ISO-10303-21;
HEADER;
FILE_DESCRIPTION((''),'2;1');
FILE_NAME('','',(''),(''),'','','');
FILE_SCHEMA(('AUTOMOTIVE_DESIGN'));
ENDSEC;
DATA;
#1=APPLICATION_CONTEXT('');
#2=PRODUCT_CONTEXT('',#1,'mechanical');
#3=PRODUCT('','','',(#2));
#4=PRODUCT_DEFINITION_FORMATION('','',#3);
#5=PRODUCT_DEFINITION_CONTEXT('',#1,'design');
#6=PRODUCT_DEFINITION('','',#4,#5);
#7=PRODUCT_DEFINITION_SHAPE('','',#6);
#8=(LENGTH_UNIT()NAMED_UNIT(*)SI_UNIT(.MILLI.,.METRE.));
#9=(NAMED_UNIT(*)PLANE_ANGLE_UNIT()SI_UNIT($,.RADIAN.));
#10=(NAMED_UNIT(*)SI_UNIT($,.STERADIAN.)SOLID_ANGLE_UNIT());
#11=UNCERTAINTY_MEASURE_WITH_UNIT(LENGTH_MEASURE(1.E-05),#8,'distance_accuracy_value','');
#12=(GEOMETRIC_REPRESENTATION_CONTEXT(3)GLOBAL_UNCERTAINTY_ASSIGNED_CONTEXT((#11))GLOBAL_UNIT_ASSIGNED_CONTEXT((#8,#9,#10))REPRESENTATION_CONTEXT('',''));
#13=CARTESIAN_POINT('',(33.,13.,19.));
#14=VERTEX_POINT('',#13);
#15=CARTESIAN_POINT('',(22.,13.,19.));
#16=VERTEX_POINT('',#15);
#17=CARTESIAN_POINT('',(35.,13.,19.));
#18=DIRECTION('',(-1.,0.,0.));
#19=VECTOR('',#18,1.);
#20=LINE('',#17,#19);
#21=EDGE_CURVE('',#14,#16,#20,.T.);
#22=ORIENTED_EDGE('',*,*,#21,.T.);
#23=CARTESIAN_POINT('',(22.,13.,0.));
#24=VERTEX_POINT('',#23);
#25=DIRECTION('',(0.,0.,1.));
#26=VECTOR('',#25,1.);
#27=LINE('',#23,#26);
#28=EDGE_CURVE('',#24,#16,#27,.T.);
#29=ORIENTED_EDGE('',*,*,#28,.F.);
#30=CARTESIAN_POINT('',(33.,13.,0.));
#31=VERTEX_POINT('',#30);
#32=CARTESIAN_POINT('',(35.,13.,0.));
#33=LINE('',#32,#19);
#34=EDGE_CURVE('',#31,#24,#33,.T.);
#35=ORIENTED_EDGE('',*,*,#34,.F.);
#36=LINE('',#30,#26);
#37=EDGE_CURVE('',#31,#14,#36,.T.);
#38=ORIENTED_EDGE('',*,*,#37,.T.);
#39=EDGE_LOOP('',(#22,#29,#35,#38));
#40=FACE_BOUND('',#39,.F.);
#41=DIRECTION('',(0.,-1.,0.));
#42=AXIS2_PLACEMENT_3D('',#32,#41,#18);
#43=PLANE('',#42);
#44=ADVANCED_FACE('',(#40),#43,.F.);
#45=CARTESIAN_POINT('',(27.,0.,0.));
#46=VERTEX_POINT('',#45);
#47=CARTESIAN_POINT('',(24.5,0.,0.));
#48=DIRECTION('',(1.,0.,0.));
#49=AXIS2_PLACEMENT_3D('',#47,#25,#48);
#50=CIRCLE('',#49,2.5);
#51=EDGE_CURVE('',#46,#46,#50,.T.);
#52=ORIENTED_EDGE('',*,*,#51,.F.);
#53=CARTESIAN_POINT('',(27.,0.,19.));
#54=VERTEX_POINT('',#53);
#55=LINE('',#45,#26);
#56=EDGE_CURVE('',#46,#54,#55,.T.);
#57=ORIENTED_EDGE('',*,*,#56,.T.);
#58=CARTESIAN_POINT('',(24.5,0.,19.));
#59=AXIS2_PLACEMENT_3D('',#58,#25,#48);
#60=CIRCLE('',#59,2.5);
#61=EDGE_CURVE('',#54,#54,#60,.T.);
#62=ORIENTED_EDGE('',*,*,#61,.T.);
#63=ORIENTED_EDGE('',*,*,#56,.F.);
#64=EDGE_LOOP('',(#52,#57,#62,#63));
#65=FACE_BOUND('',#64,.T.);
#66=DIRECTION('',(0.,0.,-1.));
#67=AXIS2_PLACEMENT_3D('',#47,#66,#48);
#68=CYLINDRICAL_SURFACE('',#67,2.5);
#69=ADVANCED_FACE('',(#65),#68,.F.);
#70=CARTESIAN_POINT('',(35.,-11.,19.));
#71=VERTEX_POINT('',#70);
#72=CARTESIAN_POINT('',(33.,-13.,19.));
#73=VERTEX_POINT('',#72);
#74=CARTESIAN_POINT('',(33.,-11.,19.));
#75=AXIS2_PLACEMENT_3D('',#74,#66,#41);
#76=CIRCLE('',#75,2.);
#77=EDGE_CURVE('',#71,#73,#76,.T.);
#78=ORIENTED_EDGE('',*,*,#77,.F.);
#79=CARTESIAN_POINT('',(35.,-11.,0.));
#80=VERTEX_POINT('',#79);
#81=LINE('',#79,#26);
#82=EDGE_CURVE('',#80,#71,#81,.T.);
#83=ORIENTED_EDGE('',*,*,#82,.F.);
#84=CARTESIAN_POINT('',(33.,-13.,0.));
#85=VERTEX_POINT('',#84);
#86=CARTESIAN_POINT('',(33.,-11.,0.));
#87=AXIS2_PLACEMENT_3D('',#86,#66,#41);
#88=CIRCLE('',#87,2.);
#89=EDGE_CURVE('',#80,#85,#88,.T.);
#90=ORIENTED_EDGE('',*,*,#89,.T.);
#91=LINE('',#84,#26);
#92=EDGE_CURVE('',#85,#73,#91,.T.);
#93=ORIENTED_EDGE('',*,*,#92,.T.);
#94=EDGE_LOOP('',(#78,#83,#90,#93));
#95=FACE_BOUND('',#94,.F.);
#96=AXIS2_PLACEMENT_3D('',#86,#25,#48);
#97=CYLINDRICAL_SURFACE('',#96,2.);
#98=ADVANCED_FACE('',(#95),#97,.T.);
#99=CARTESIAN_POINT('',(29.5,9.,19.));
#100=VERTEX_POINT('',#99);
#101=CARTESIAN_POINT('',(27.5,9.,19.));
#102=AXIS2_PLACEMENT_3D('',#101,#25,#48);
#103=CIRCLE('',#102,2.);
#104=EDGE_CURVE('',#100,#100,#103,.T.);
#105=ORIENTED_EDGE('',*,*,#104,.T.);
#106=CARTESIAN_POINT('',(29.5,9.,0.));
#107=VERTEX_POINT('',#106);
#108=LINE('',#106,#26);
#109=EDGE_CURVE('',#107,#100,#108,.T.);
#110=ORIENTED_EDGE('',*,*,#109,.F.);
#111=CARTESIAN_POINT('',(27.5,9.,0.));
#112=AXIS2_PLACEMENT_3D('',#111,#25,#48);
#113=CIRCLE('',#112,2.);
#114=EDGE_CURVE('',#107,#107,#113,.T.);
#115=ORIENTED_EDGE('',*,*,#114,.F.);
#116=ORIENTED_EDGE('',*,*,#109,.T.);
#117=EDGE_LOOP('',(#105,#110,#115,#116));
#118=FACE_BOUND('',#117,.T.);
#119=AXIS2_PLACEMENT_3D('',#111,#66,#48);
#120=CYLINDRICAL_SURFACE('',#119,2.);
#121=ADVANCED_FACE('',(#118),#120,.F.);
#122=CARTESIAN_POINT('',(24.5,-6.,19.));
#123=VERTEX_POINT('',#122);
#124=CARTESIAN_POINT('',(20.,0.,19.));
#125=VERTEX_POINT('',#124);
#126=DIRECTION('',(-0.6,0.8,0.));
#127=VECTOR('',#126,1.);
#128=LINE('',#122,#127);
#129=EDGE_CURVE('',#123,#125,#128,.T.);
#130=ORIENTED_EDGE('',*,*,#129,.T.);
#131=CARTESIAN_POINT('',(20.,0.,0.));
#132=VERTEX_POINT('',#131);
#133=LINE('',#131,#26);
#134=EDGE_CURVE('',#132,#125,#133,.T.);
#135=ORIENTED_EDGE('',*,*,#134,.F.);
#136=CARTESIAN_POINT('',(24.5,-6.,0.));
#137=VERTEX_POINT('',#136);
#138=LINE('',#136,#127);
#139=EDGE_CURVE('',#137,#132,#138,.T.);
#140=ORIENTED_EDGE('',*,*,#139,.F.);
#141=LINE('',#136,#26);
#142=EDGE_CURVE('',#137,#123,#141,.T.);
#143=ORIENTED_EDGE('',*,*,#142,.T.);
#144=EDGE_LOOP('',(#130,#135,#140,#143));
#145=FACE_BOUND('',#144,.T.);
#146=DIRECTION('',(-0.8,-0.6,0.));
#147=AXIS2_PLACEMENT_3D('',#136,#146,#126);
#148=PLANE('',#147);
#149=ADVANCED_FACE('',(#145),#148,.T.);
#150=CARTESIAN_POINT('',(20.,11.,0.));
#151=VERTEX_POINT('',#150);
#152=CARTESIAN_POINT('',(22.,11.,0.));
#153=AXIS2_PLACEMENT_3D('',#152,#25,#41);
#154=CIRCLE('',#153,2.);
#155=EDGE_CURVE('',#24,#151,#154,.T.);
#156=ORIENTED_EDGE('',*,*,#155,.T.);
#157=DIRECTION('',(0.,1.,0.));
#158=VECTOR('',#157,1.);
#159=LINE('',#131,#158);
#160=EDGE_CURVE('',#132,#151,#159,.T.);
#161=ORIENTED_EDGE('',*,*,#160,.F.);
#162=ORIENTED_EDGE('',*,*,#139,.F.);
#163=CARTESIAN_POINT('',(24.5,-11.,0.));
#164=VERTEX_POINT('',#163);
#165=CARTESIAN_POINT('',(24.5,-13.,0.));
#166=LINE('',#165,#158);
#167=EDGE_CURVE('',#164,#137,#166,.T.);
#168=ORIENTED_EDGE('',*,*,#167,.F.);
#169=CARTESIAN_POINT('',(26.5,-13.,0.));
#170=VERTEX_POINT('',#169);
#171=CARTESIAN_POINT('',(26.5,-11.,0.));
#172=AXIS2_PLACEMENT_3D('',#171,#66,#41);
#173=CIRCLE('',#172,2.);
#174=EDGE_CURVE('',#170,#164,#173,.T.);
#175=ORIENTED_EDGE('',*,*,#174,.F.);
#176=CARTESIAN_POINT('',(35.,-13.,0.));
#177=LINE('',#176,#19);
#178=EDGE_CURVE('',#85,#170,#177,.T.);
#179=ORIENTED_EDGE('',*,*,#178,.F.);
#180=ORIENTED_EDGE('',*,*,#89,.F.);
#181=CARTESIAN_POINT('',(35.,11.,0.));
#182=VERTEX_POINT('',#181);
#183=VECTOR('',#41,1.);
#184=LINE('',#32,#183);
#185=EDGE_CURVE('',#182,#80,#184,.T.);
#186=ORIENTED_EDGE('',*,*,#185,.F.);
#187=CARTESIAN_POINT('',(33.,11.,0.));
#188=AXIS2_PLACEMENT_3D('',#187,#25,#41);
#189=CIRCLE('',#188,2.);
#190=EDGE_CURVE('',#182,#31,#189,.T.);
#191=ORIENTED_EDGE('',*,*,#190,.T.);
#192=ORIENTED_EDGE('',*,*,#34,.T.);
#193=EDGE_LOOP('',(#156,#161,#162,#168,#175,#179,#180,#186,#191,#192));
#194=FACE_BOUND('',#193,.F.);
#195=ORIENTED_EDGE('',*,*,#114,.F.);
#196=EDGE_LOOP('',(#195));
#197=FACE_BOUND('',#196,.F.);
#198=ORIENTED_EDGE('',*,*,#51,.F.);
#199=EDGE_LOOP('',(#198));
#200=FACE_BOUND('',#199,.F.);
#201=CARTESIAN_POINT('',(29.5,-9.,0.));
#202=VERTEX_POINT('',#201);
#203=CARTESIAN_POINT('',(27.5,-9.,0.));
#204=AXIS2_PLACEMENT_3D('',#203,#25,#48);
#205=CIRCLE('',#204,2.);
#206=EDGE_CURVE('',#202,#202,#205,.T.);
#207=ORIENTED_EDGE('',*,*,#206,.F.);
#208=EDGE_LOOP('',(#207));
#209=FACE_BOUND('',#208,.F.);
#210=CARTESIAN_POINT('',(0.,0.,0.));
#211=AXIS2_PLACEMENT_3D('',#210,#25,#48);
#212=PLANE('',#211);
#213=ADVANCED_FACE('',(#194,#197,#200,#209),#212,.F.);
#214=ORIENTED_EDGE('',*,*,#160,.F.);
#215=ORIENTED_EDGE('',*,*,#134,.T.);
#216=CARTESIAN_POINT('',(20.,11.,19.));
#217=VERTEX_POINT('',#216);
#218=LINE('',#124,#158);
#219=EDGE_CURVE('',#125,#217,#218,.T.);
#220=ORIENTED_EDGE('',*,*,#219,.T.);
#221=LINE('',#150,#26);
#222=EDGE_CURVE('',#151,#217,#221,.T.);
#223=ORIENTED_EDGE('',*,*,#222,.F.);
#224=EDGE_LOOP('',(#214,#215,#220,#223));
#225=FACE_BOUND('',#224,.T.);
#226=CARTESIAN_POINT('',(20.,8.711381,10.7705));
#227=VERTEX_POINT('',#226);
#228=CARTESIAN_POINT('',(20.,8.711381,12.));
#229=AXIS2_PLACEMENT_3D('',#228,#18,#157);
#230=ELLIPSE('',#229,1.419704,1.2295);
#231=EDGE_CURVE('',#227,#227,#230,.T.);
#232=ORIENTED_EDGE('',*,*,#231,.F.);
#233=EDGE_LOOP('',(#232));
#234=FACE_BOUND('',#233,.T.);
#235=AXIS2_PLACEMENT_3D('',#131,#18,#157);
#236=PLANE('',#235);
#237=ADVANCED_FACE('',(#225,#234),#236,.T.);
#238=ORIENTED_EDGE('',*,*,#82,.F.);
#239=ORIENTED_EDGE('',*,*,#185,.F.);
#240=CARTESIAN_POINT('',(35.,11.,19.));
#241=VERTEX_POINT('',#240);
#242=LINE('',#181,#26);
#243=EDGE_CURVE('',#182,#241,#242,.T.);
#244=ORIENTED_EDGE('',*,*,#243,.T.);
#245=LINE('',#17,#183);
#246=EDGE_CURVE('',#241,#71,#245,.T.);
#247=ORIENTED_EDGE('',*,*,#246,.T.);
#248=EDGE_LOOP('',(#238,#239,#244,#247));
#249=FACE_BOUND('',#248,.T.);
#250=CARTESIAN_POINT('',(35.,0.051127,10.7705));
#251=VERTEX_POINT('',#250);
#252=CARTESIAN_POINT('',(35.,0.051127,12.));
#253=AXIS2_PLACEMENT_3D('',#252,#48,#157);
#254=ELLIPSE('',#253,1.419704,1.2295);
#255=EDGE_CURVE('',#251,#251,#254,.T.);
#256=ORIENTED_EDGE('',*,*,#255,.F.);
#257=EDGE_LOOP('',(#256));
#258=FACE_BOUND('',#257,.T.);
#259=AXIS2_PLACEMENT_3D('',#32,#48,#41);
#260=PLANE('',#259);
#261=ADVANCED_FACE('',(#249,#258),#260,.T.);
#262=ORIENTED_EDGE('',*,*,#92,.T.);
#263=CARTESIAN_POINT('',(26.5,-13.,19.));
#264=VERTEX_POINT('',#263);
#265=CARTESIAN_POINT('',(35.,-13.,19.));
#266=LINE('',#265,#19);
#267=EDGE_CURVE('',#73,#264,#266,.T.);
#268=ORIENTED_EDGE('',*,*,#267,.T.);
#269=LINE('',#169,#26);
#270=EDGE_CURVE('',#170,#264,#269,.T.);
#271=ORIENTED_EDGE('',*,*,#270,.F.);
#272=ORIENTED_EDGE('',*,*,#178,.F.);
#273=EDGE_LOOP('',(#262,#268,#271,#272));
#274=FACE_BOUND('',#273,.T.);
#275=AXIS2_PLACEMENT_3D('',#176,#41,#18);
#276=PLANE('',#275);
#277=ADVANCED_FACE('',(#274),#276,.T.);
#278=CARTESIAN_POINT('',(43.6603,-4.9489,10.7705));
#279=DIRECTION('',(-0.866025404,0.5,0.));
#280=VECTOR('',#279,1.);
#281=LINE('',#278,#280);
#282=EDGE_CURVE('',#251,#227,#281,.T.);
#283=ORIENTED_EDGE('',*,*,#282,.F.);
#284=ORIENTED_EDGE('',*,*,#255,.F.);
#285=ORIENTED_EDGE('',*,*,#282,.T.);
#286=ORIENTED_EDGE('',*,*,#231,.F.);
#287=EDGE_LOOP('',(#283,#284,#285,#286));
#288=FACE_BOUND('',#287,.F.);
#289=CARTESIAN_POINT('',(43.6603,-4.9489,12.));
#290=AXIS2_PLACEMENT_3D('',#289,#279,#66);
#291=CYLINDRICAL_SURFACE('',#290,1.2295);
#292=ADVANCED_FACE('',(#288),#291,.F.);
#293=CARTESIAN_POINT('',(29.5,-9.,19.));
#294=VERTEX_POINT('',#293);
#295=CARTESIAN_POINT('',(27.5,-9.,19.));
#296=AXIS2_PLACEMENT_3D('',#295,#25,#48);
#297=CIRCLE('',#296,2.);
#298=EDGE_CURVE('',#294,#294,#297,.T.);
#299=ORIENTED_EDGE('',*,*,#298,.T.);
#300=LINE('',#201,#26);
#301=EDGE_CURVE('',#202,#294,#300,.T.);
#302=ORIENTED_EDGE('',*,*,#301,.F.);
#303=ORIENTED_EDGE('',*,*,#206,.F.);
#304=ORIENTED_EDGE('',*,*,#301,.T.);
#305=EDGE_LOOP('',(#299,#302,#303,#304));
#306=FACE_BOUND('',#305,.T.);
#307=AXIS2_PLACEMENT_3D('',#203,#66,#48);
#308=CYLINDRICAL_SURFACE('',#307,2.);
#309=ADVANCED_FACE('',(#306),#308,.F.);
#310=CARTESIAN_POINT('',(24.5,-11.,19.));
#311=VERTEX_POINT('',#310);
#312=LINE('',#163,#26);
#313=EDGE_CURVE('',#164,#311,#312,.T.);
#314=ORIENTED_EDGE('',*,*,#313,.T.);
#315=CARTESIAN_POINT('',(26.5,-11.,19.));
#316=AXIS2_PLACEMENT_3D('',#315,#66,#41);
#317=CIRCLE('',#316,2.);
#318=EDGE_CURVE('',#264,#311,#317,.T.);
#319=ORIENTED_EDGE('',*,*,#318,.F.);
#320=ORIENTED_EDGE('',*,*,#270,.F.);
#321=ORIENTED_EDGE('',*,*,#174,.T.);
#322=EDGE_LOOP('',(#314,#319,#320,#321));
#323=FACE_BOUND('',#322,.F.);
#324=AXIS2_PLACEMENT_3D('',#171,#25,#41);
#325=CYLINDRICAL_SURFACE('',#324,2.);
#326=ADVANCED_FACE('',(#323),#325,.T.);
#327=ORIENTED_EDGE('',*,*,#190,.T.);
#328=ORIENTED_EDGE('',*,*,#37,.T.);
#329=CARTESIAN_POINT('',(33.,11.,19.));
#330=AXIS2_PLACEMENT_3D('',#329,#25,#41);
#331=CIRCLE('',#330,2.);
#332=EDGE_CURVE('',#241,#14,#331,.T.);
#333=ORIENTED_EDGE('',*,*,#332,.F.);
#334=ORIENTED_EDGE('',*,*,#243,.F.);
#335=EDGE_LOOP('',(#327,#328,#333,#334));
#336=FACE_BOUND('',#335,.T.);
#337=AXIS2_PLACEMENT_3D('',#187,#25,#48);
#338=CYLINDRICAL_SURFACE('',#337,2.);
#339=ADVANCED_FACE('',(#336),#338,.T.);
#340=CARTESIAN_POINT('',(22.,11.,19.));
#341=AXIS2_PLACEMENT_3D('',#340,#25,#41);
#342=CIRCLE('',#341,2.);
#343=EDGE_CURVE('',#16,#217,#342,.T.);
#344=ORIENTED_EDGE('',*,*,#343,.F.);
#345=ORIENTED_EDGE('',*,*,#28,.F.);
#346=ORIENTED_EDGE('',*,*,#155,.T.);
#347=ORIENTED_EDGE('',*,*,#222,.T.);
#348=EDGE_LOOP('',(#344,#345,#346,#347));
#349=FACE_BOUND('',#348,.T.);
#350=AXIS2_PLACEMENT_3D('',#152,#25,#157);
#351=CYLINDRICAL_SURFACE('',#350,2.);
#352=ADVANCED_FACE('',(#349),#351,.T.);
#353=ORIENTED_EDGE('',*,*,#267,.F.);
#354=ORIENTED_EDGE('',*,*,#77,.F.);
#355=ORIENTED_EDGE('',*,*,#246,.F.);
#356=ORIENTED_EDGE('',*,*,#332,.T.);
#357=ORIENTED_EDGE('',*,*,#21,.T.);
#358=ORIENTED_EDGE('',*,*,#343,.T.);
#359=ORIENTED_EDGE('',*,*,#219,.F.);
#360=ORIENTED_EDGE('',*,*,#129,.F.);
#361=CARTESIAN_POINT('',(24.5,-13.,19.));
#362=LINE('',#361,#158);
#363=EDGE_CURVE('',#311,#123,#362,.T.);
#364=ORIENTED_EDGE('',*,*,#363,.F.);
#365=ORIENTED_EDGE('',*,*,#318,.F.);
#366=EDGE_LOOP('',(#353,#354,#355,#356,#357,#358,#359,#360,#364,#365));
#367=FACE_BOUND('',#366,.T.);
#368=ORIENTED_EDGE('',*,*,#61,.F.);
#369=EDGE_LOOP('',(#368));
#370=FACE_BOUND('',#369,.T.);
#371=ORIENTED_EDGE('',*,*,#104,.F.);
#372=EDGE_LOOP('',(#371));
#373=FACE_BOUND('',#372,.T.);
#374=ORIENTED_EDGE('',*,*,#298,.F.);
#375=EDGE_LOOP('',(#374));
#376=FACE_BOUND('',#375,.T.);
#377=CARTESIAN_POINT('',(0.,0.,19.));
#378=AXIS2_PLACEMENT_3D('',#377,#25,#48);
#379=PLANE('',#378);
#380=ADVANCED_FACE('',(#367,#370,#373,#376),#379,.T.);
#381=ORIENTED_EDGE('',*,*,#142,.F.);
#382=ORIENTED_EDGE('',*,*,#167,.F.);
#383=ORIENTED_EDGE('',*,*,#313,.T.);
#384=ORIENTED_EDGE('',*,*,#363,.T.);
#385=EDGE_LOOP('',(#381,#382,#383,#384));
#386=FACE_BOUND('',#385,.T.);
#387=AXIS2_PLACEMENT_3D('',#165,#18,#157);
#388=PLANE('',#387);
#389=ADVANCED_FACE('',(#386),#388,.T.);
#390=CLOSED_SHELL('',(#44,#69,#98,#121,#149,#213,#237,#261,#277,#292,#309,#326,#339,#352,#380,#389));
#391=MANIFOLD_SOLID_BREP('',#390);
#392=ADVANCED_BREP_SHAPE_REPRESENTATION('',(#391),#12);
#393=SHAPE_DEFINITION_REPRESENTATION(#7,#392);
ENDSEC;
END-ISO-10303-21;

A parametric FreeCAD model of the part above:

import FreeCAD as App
import Part
import Sketcher
from FreeCAD import Vector
Q = App.Units.Quantity


def edges_at(feature, points):
    """Names of the edges that pass closest to the given points."""
    edges = feature.Shape.Edges
    near = lambda p: min(range(len(edges)), key=lambda i: edges[i].distToShape(Part.Vertex(*p))[0])
    return sorted({f"Edge{near(p) + 1}" for p in points})


def add_polygon(sketch, points):
    """Adds a closed chain of lines whose ends are joined by coincident constraints."""
    first, n = sketch.GeometryCount, len(points)
    for a, b in zip(points, points[1:] + points[:1]):
        sketch.addGeometry(Part.LineSegment(App.Vector(*a, 0), App.Vector(*b, 0)), False)
    for i in range(n):
        sketch.addConstraint(Sketcher.Constraint("Coincident", first + i, 2, first + (i + 1) % n, 1))

doc = App.newDocument("Part")
params = doc.addObject("Spreadsheet::Sheet", "Params")
for row, (alias, value) in enumerate([
    ("sketch1_height", "26 mm"),
    ("sketch1_height2", "7 mm"),
    ("sketch1_diameter", "4 mm"),
    ("sketch1_diameter2", "5 mm"),
    ("sketch1_width", "15 mm"),
    ("pad1_length", "19 mm"),
    ("hole_diameter", "2.459 mm"),
    ("fillet_radius", "2 mm"),
], start=1):
    params.set(f"A{row}", alias)
    params.set(f"B{row}", "=" + value)
    params.setAlias(f"B{row}", alias)

body = doc.addObject("PartDesign::Body", "Body")

# Sketch on XY plane
sketch1 = body.newObject("Sketcher::SketchObject", "Sketch")
sketch1.AttachmentSupport = (doc.getObject("XY_Plane"), [""])
sketch1.MapMode = "FlatFace"
add_polygon(sketch1, [(35, -13), (35, 13), (20, 13), (20, 0), (24.5, -6), (24.5, -13)])  # lines 0-5
sketch1.addGeometry(Part.Circle(Vector(27.5, -9, 0), Vector(0, 0, 1), 2), False)  # 6
sketch1.addGeometry(Part.Circle(Vector(24.5, 0, 0), Vector(0, 0, 1), 2.5), False)  # 7
sketch1.addGeometry(Part.Circle(Vector(27.5, 9, 0), Vector(0, 0, 1), 2), False)  # 8
sketch1.addConstraint([
    Sketcher.Constraint("Vertical", 0),
    Sketcher.Constraint("Horizontal", 1),
    Sketcher.Constraint("Vertical", 2),
    Sketcher.Constraint("Vertical", 4),
    Sketcher.Constraint("Horizontal", 5),
    Sketcher.Constraint("Equal", 6, 8),
    Sketcher.Constraint("Symmetric", 6, 3, 8, 3, -1),
    Sketcher.Constraint("PointOnObject", 7, 3, -1),
    Sketcher.Constraint("PointOnObject", 2, 2, -1),
    Sketcher.Constraint("Vertical", 7, 3, 3, 2),
    Sketcher.Constraint("DistanceY", 0, 1, 0, 2, Q("26 mm")),
    Sketcher.Constraint("DistanceY", 4, 2, 4, 1, Q("7 mm")),
    Sketcher.Constraint("Diameter", 6, Q("4 mm")),
    Sketcher.Constraint("Diameter", 7, Q("5 mm")),
    Sketcher.Constraint("DistanceX", 7, 3, 6, 3, Q("3 mm")),
    Sketcher.Constraint("DistanceY", 6, 3, 3, 2, Q("3 mm")),
    Sketcher.Constraint("DistanceX", 1, 2, 1, 1, Q("15 mm")),
    Sketcher.Constraint("DistanceY", 2, 2, 2, 1, Q("13 mm")),
    Sketcher.Constraint("DistanceX", 5, 1, 5, 2, Q("10.5 mm")),
    Sketcher.Constraint("DistanceX", -1, 1, 0, 2, Q("35 mm")),
])
sketch1.setExpression("Constraints[16]", "Params.sketch1_height")
sketch1.setExpression("Constraints[17]", "Params.sketch1_height2")
sketch1.setExpression("Constraints[18]", "Params.sketch1_diameter")
sketch1.setExpression("Constraints[19]", "Params.sketch1_diameter2")
sketch1.setExpression("Constraints[22]", "Params.sketch1_width")
pad1 = body.newObject("PartDesign::Pad", "Pad")
pad1.Profile = sketch1
pad1.setExpression("Length", "Params.pad1_length")

# Sketch on an angled plane
sketch2 = body.newObject("Sketcher::SketchObject", "Sketch001")
sketch2.Placement = App.Placement(Vector(34.888162, -20.142689, 0), App.Rotation(Vector(0.5, 0.866025404, 0), Vector(0, 0, 1), Vector(0.866025404, -0.5, 0), "ZXY"))
sketch2.addGeometry(Part.Circle(Vector(17.5, 12, 0), Vector(0, 0, 1), 1.2), False)
sketch2.addConstraint([
    Sketcher.Constraint("Diameter", 0, Q("2.459 mm")),
    Sketcher.Constraint("DistanceY", -1, 1, 0, 3, Q("12 mm")),
    Sketcher.Constraint("DistanceX", -1, 1, 0, 3, Q("17.5443 mm")),
])
doc.recompute()
hole = body.newObject("PartDesign::Hole", "Hole")
hole.Profile = sketch2
hole.ThreadType = "None"
hole.setExpression("Diameter", "Params.hole_diameter")
hole.DepthType = "ThroughAll"
doc.recompute()

fillet = body.newObject("PartDesign::Fillet", "Fillet")
fillet.Base = (hole, edges_at(hole, [
    (35, 13, 9.5),
    (20, 13, 9.5),
    (24.5, -13, 9.5),
    (35, -13, 9.5),
]))
fillet.setExpression("Radius", "Params.fillet_radius")

doc.recompute()
